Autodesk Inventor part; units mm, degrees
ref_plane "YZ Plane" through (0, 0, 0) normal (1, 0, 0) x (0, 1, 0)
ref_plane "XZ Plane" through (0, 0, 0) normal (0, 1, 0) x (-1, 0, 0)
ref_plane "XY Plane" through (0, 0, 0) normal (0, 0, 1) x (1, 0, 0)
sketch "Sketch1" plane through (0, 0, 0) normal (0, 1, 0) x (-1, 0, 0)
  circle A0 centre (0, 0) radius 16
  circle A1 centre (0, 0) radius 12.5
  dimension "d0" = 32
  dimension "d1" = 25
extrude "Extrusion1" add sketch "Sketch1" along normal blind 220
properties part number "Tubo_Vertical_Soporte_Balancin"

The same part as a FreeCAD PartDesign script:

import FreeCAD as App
import Part
import Sketcher

doc = App.newDocument("Part")
body = doc.addObject("PartDesign::Body", "Body")

# Sketch on XZ plane
sketch1 = body.newObject("Sketcher::SketchObject", "Sketch")
sketch1.AttachmentSupport = (doc.getObject("XZ_Plane"), [""])
sketch1.MapMode = "FlatFace"
sketch1.addGeometry(Part.Circle(App.Vector(0, 0, 0), App.Vector(0, 0, 1), 16), False)
sketch1.addGeometry(Part.Circle(App.Vector(0, 0, 0), App.Vector(0, 0, 1), 12), False)
sketch1.addConstraint(Sketcher.Constraint("Coincident", 0, 3, -1, 1))
sketch1.addConstraint(Sketcher.Constraint("Coincident", 1, 3, -1, 1))
sketch1.addConstraint(Sketcher.Constraint("Diameter", 0, 32.0))
sketch1.addConstraint(Sketcher.Constraint("Diameter", 1, 25.0))
pad1 = body.newObject("PartDesign::Pad", "Pad")
pad1.Profile = sketch1
pad1.Length = 220
pad1.Reversed = True

doc.recompute()
